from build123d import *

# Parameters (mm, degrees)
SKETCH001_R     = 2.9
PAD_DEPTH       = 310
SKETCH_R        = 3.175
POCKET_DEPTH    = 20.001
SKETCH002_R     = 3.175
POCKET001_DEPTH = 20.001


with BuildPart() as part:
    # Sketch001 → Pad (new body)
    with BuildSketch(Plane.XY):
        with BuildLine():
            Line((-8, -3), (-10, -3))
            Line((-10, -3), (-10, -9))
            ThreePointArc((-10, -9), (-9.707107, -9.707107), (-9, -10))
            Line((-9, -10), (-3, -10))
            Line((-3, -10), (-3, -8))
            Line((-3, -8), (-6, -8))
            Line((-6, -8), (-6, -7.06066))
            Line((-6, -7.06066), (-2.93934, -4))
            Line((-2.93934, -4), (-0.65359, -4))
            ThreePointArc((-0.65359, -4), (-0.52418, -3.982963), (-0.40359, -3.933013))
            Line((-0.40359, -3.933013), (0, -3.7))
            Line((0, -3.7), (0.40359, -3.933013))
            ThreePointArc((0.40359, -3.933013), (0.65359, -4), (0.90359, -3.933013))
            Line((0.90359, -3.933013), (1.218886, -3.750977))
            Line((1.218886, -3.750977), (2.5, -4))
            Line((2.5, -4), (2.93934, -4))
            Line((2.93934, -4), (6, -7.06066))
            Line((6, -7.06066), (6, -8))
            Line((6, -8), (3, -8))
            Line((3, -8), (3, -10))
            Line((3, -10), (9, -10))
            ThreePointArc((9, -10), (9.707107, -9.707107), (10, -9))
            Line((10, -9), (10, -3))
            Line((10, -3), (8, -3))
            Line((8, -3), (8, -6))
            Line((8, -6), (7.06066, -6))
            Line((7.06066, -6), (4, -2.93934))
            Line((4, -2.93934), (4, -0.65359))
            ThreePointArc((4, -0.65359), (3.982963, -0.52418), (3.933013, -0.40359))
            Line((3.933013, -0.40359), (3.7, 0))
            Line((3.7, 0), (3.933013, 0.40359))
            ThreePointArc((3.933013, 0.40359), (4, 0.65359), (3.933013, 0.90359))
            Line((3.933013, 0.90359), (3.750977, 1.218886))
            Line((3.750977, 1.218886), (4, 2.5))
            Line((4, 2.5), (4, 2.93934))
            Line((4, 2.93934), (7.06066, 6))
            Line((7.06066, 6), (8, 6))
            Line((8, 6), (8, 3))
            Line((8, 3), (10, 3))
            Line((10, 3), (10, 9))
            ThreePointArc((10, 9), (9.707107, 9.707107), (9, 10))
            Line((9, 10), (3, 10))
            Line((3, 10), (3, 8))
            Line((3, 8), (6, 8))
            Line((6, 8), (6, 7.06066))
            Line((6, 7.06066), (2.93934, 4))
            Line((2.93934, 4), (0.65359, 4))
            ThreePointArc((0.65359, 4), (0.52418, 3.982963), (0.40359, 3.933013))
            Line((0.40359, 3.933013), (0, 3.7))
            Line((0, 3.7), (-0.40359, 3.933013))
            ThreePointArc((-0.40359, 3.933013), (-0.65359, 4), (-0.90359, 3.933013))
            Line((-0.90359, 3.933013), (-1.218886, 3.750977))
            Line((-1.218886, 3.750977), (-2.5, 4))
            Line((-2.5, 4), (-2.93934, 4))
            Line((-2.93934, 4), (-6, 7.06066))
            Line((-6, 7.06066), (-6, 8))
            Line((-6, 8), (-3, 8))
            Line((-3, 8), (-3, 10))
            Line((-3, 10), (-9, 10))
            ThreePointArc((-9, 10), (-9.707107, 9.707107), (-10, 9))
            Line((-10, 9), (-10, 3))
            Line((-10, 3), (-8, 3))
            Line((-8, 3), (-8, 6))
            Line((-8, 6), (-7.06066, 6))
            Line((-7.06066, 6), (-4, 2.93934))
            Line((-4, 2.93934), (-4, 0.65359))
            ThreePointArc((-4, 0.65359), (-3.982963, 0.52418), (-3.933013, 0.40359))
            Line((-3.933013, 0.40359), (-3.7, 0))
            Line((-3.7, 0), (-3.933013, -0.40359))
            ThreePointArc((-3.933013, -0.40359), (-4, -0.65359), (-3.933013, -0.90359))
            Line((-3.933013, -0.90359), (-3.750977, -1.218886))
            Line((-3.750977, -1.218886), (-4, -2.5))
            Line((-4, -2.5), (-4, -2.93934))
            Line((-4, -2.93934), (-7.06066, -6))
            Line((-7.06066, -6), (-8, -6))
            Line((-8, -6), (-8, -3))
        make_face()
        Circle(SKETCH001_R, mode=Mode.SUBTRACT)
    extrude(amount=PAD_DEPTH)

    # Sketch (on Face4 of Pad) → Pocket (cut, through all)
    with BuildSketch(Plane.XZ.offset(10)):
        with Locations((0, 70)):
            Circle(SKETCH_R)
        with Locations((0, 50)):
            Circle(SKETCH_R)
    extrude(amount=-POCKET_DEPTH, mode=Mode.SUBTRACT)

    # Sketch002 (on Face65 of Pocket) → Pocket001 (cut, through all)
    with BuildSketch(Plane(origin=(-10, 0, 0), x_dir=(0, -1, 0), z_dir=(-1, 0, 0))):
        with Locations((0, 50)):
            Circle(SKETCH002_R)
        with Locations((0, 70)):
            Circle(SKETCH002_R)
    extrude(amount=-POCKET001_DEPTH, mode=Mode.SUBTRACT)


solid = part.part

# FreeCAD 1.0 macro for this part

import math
import FreeCAD as App
import Part
import Sketcher

V = App.Vector
Q = App.Units.Quantity

doc = App.newDocument("Part")
params = doc.addObject("Spreadsheet::Sheet", "Params")
for row, (alias, value) in enumerate([
    ("sketch1_radius", "0.999999 mm"),
    ("sketch1_diameter", "5.8 mm"),
    ("sketch1_radius2", "0.500002 mm"),
    ("sketch1_width", "2 mm"),
    ("sketch1_width2", "6 mm"),
    ("pad1_length", "310 mm"),
    ("sketch2_diameter", "6.35 mm"),
    ("sketch3_diameter", "6.35 mm"),
], start=1):
    params.set(f"A{row}", alias)
    params.set(f"B{row}", "=" + value)
    params.setAlias(f"B{row}", alias)

body = doc.addObject("PartDesign::Body", "Body")

sketch1 = doc.addObject("Sketcher::SketchObject", "Sketch")
body.addObject(sketch1)
sketch1.AttachmentSupport = (doc.XY_Plane, [""])
sketch1.MapMode = "FlatFace"
sketch1.addGeometry(Part.LineSegment(V(-8, -3, 0), V(-10, -3, 0)), False)
sketch1.addGeometry(Part.LineSegment(V(-10, -3, 0), V(-10, -9, 0)), False)
sketch1.addGeometry(Part.ArcOfCircle(Part.Circle(V(-9.000001, -9.000001, 0), V(0, 0, 1), 0.999999), math.radians(179.999957), math.radians(270.000043)), False)
sketch1.addGeometry(Part.LineSegment(V(-9, -10, 0), V(-3, -10, 0)), False)
sketch1.addGeometry(Part.LineSegment(V(-3, -10, 0), V(-3, -8, 0)), False)
sketch1.addGeometry(Part.LineSegment(V(-3, -8, 0), V(-6, -8, 0)), False)
sketch1.addGeometry(Part.LineSegment(V(-6, -8, 0), V(-6, -7.06066, 0)), False)
sketch1.addGeometry(Part.LineSegment(V(-6, -7.06066, 0), V(-2.93934, -4, 0)), False)
sketch1.addGeometry(Part.LineSegment(V(-2.93934, -4, 0), V(-0.65359, -4, 0)), False)
sketch1.addGeometry(Part.ArcOfCircle(Part.Circle(V(-0.653589, -3.500002, 0), V(0, 0, 1), 0.499998), math.radians(-90.000123), math.radians(-60.000004)), False)
sketch1.addGeometry(Part.LineSegment(V(-0.40359, -3.933013, 0), V(0, -3.7, 0)), False)
sketch1.addGeometry(Part.LineSegment(V(0, -3.7, 0), V(0.40359, -3.933013, 0)), False)
sketch1.addGeometry(Part.ArcOfCircle(Part.Circle(V(0.65359, -3.499998, 0), V(0, 0, 1), 0.500002), math.radians(-119.999873), math.radians(-60.000127)), False)
sketch1.addGeometry(Part.LineSegment(V(0.90359, -3.933013, 0), V(1.218886, -3.750977, 0)), False)
sketch1.addGeometry(Part.LineSegment(V(1.218886, -3.750977, 0), V(2.5, -4, 0)), False)
sketch1.addGeometry(Part.LineSegment(V(2.5, -4, 0), V(2.93934, -4, 0)), False)
sketch1.addGeometry(Part.LineSegment(V(2.93934, -4, 0), V(6, -7.06066, 0)), False)
sketch1.addGeometry(Part.LineSegment(V(6, -7.06066, 0), V(6, -8, 0)), False)
sketch1.addGeometry(Part.LineSegment(V(6, -8, 0), V(3, -8, 0)), False)
sketch1.addGeometry(Part.LineSegment(V(3, -8, 0), V(3, -10, 0)), False)
sketch1.addGeometry(Part.LineSegment(V(3, -10, 0), V(9, -10, 0)), False)
sketch1.addGeometry(Part.ArcOfCircle(Part.Circle(V(9.000001, -9.000001, 0), V(0, 0, 1), 0.999999), math.radians(-90.000043), math.radians(0.000043)), False)
sketch1.addGeometry(Part.LineSegment(V(10, -9, 0), V(10, -3, 0)), False)
sketch1.addGeometry(Part.LineSegment(V(10, -3, 0), V(8, -3, 0)), False)
sketch1.addGeometry(Part.LineSegment(V(8, -3, 0), V(8, -6, 0)), False)
sketch1.addGeometry(Part.LineSegment(V(8, -6, 0), V(7.06066, -6, 0)), False)
sketch1.addGeometry(Part.LineSegment(V(7.06066, -6, 0), V(4, -2.93934, 0)), False)
sketch1.addGeometry(Part.LineSegment(V(4, -2.93934, 0), V(4, -0.65359, 0)), False)
sketch1.addGeometry(Part.ArcOfCircle(Part.Circle(V(3.500002, -0.653589, 0), V(0, 0, 1), 0.499998), math.radians(-0.000123), math.radians(29.999996)), False)
sketch1.addGeometry(Part.LineSegment(V(3.933013, -0.40359, 0), V(3.7, 0, 0)), False)
sketch1.addGeometry(Part.LineSegment(V(3.7, 0, 0), V(3.933013, 0.40359, 0)), False)
sketch1.addGeometry(Part.ArcOfCircle(Part.Circle(V(3.499998, 0.65359, 0), V(0, 0, 1), 0.500002), math.radians(-29.999873), math.radians(29.999873)), False)
sketch1.addGeometry(Part.LineSegment(V(3.933013, 0.90359, 0), V(3.750977, 1.218886, 0)), False)
sketch1.addGeometry(Part.LineSegment(V(3.750977, 1.218886, 0), V(4, 2.5, 0)), False)
sketch1.addGeometry(Part.LineSegment(V(4, 2.5, 0), V(4, 2.93934, 0)), False)
sketch1.addGeometry(Part.LineSegment(V(4, 2.93934, 0), V(7.06066, 6, 0)), False)
sketch1.addGeometry(Part.LineSegment(V(7.06066, 6, 0), V(8, 6, 0)), False)
sketch1.addGeometry(Part.LineSegment(V(8, 6, 0), V(8, 3, 0)), False)
sketch1.addGeometry(Part.LineSegment(V(8, 3, 0), V(10, 3, 0)), False)
sketch1.addGeometry(Part.LineSegment(V(10, 3, 0), V(10, 9, 0)), False)
sketch1.addGeometry(Part.ArcOfCircle(Part.Circle(V(9.000001, 9.000001, 0), V(0, 0, 1), 0.999999), math.radians(-0.000043), math.radians(90.000043)), False)
sketch1.addGeometry(Part.LineSegment(V(9, 10, 0), V(3, 10, 0)), False)
sketch1.addGeometry(Part.LineSegment(V(3, 10, 0), V(3, 8, 0)), False)
sketch1.addGeometry(Part.LineSegment(V(3, 8, 0), V(6, 8, 0)), False)
sketch1.addGeometry(Part.LineSegment(V(6, 8, 0), V(6, 7.06066, 0)), False)
sketch1.addGeometry(Part.LineSegment(V(6, 7.06066, 0), V(2.93934, 4, 0)), False)
sketch1.addGeometry(Part.LineSegment(V(2.93934, 4, 0), V(0.65359, 4, 0)), False)
sketch1.addGeometry(Part.ArcOfCircle(Part.Circle(V(0.653589, 3.500002, 0), V(0, 0, 1), 0.499998), math.radians(89.999877), math.radians(119.999996)), False)
sketch1.addGeometry(Part.LineSegment(V(0.40359, 3.933013, 0), V(0, 3.7, 0)), False)
sketch1.addGeometry(Part.LineSegment(V(0, 3.7, 0), V(-0.40359, 3.933013, 0)), False)
sketch1.addGeometry(Part.ArcOfCircle(Part.Circle(V(-0.65359, 3.499998, 0), V(0, 0, 1), 0.500002), math.radians(60.000127), math.radians(119.999873)), False)
sketch1.addGeometry(Part.LineSegment(V(-0.90359, 3.933013, 0), V(-1.218886, 3.750977, 0)), False)
sketch1.addGeometry(Part.LineSegment(V(-1.218886, 3.750977, 0), V(-2.5, 4, 0)), False)
sketch1.addGeometry(Part.LineSegment(V(-2.5, 4, 0), V(-2.93934, 4, 0)), False)
sketch1.addGeometry(Part.LineSegment(V(-2.93934, 4, 0), V(-6, 7.06066, 0)), False)
sketch1.addGeometry(Part.LineSegment(V(-6, 7.06066, 0), V(-6, 8, 0)), False)
sketch1.addGeometry(Part.LineSegment(V(-6, 8, 0), V(-3, 8, 0)), False)
sketch1.addGeometry(Part.LineSegment(V(-3, 8, 0), V(-3, 10, 0)), False)
sketch1.addGeometry(Part.LineSegment(V(-3, 10, 0), V(-9, 10, 0)), False)
sketch1.addGeometry(Part.ArcOfCircle(Part.Circle(V(-9.000001, 9.000001, 0), V(0, 0, 1), 0.999999), math.radians(89.999957), math.radians(180.000043)), False)
sketch1.addGeometry(Part.LineSegment(V(-10, 9, 0), V(-10, 3, 0)), False)
sketch1.addGeometry(Part.LineSegment(V(-10, 3, 0), V(-8, 3, 0)), False)
sketch1.addGeometry(Part.LineSegment(V(-8, 3, 0), V(-8, 6, 0)), False)
sketch1.addGeometry(Part.LineSegment(V(-8, 6, 0), V(-7.06066, 6, 0)), False)
sketch1.addGeometry(Part.LineSegment(V(-7.06066, 6, 0), V(-4, 2.93934, 0)), False)
sketch1.addGeometry(Part.LineSegment(V(-4, 2.93934, 0), V(-4, 0.65359, 0)), False)
sketch1.addGeometry(Part.ArcOfCircle(Part.Circle(V(-3.500002, 0.653589, 0), V(0, 0, 1), 0.499998), math.radians(179.999877), math.radians(209.999996)), False)
sketch1.addGeometry(Part.LineSegment(V(-3.933013, 0.40359, 0), V(-3.7, 0, 0)), False)
sketch1.addGeometry(Part.LineSegment(V(-3.7, 0, 0), V(-3.933013, -0.40359, 0)), False)
sketch1.addGeometry(Part.ArcOfCircle(Part.Circle(V(-3.499998, -0.65359, 0), V(0, 0, 1), 0.500002), math.radians(150.000127), math.radians(209.999873)), False)
sketch1.addGeometry(Part.LineSegment(V(-3.933013, -0.90359, 0), V(-3.750977, -1.218886, 0)), False)
sketch1.addGeometry(Part.LineSegment(V(-3.750977, -1.218886, 0), V(-4, -2.5, 0)), False)
sketch1.addGeometry(Part.LineSegment(V(-4, -2.5, 0), V(-4, -2.93934, 0)), False)
sketch1.addGeometry(Part.LineSegment(V(-4, -2.93934, 0), V(-7.06066, -6, 0)), False)
sketch1.addGeometry(Part.LineSegment(V(-7.06066, -6, 0), V(-8, -6, 0)), False)
sketch1.addGeometry(Part.LineSegment(V(-8, -6, 0), V(-8, -3, 0)), False)
sketch1.addGeometry(Part.Circle(V(0, 0, 0), V(0, 0, 1), 2.9), False)
sketch1.addConstraint(Sketcher.Constraint("Coincident", 0, 2, 1, 1))
sketch1.addConstraint(Sketcher.Constraint("Tangent", 1, 2, 2, 1))
sketch1.addConstraint(Sketcher.Constraint("Tangent", 2, 2, 3, 1))
sketch1.addConstraint(Sketcher.Constraint("Coincident", 3, 2, 4, 1))
sketch1.addConstraint(Sketcher.Constraint("Coincident", 4, 2, 5, 1))
sketch1.addConstraint(Sketcher.Constraint("Coincident", 5, 2, 6, 1))
sketch1.addConstraint(Sketcher.Constraint("Coincident", 6, 2, 7, 1))
sketch1.addConstraint(Sketcher.Constraint("Coincident", 7, 2, 8, 1))
sketch1.addConstraint(Sketcher.Constraint("Coincident", 8, 2, 9, 1))
sketch1.addConstraint(Sketcher.Constraint("Tangent", 9, 2, 10, 1))
sketch1.addConstraint(Sketcher.Constraint("Coincident", 10, 2, 11, 1))
sketch1.addConstraint(Sketcher.Constraint("Coincident", 11, 2, 12, 1))
sketch1.addConstraint(Sketcher.Constraint("Tangent", 12, 2, 13, 1))
sketch1.addConstraint(Sketcher.Constraint("Coincident", 13, 2, 14, 1))
sketch1.addConstraint(Sketcher.Constraint("Coincident", 14, 2, 15, 1))
sketch1.addConstraint(Sketcher.Constraint("Coincident", 15, 2, 16, 1))
sketch1.addConstraint(Sketcher.Constraint("Coincident", 16, 2, 17, 1))
sketch1.addConstraint(Sketcher.Constraint("Coincident", 17, 2, 18, 1))
sketch1.addConstraint(Sketcher.Constraint("Coincident", 18, 2, 19, 1))
sketch1.addConstraint(Sketcher.Constraint("Coincident", 19, 2, 20, 1))
sketch1.addConstraint(Sketcher.Constraint("Tangent", 20, 2, 21, 1))
sketch1.addConstraint(Sketcher.Constraint("Tangent", 21, 2, 22, 1))
sketch1.addConstraint(Sketcher.Constraint("Coincident", 22, 2, 23, 1))
sketch1.addConstraint(Sketcher.Constraint("Coincident", 23, 2, 24, 1))
sketch1.addConstraint(Sketcher.Constraint("Coincident", 24, 2, 25, 1))
sketch1.addConstraint(Sketcher.Constraint("Coincident", 25, 2, 26, 1))
sketch1.addConstraint(Sketcher.Constraint("Coincident", 26, 2, 27, 1))
sketch1.addConstraint(Sketcher.Constraint("Coincident", 27, 2, 28, 1))
sketch1.addConstraint(Sketcher.Constraint("Tangent", 28, 2, 29, 1))
sketch1.addConstraint(Sketcher.Constraint("Coincident", 29, 2, 30, 1))
sketch1.addConstraint(Sketcher.Constraint("Coincident", 30, 2, 31, 1))
sketch1.addConstraint(Sketcher.Constraint("Tangent", 31, 2, 32, 1))
sketch1.addConstraint(Sketcher.Constraint("Coincident", 32, 2, 33, 1))
sketch1.addConstraint(Sketcher.Constraint("Coincident", 33, 2, 34, 1))
sketch1.addConstraint(Sketcher.Constraint("Coincident", 34, 2, 35, 1))
sketch1.addConstraint(Sketcher.Constraint("Coincident", 35, 2, 36, 1))
sketch1.addConstraint(Sketcher.Constraint("Coincident", 36, 2, 37, 1))
sketch1.addConstraint(Sketcher.Constraint("Coincident", 37, 2, 38, 1))
sketch1.addConstraint(Sketcher.Constraint("Coincident", 38, 2, 39, 1))
sketch1.addConstraint(Sketcher.Constraint("Tangent", 39, 2, 40, 1))
sketch1.addConstraint(Sketcher.Constraint("Tangent", 40, 2, 41, 1))
sketch1.addConstraint(Sketcher.Constraint("Coincident", 41, 2, 42, 1))
sketch1.addConstraint(Sketcher.Constraint("Coincident", 42, 2, 43, 1))
sketch1.addConstraint(Sketcher.Constraint("Coincident", 43, 2, 44, 1))
sketch1.addConstraint(Sketcher.Constraint("Coincident", 44, 2, 45, 1))
sketch1.addConstraint(Sketcher.Constraint("Coincident", 45, 2, 46, 1))
sketch1.addConstraint(Sketcher.Constraint("Coincident", 46, 2, 47, 1))
sketch1.addConstraint(Sketcher.Constraint("Tangent", 47, 2, 48, 1))
sketch1.addConstraint(Sketcher.Constraint("Coincident", 48, 2, 49, 1))
sketch1.addConstraint(Sketcher.Constraint("Coincident", 49, 2, 50, 1))
sketch1.addConstraint(Sketcher.Constraint("Tangent", 50, 2, 51, 1))
sketch1.addConstraint(Sketcher.Constraint("Coincident", 51, 2, 52, 1))
sketch1.addConstraint(Sketcher.Constraint("Coincident", 52, 2, 53, 1))
sketch1.addConstraint(Sketcher.Constraint("Coincident", 53, 2, 54, 1))
sketch1.addConstraint(Sketcher.Constraint("Coincident", 54, 2, 55, 1))
sketch1.addConstraint(Sketcher.Constraint("Coincident", 55, 2, 56, 1))
sketch1.addConstraint(Sketcher.Constraint("Coincident", 56, 2, 57, 1))
sketch1.addConstraint(Sketcher.Constraint("Coincident", 57, 2, 58, 1))
sketch1.addConstraint(Sketcher.Constraint("Tangent", 58, 2, 59, 1))
sketch1.addConstraint(Sketcher.Constraint("Tangent", 59, 2, 60, 1))
sketch1.addConstraint(Sketcher.Constraint("Coincident", 60, 2, 61, 1))
sketch1.addConstraint(Sketcher.Constraint("Coincident", 61, 2, 62, 1))
sketch1.addConstraint(Sketcher.Constraint("Coincident", 62, 2, 63, 1))
sketch1.addConstraint(Sketcher.Constraint("Coincident", 63, 2, 64, 1))
sketch1.addConstraint(Sketcher.Constraint("Coincident", 64, 2, 65, 1))
sketch1.addConstraint(Sketcher.Constraint("Coincident", 65, 2, 66, 1))
sketch1.addConstraint(Sketcher.Constraint("Tangent", 66, 2, 67, 1))
sketch1.addConstraint(Sketcher.Constraint("Coincident", 67, 2, 68, 1))
sketch1.addConstraint(Sketcher.Constraint("Coincident", 68, 2, 69, 1))
sketch1.addConstraint(Sketcher.Constraint("Tangent", 69, 2, 70, 1))
sketch1.addConstraint(Sketcher.Constraint("Coincident", 70, 2, 71, 1))
sketch1.addConstraint(Sketcher.Constraint("Coincident", 71, 2, 72, 1))
sketch1.addConstraint(Sketcher.Constraint("Coincident", 72, 2, 73, 1))
sketch1.addConstraint(Sketcher.Constraint("Coincident", 73, 2, 74, 1))
sketch1.addConstraint(Sketcher.Constraint("Coincident", 74, 2, 75, 1))
sketch1.addConstraint(Sketcher.Constraint("Coincident", 75, 2, 0, 1))
sketch1.addConstraint(Sketcher.Constraint("Horizontal", 0))
sketch1.addConstraint(Sketcher.Constraint("Vertical", 1))
sketch1.addConstraint(Sketcher.Constraint("Horizontal", 3))
sketch1.addConstraint(Sketcher.Constraint("Vertical", 4))
sketch1.addConstraint(Sketcher.Constraint("Horizontal", 5))
sketch1.addConstraint(Sketcher.Constraint("Vertical", 6))
sketch1.addConstraint(Sketcher.Constraint("Horizontal", 8))
sketch1.addConstraint(Sketcher.Constraint("Horizontal", 15))
sketch1.addConstraint(Sketcher.Constraint("Vertical", 17))
sketch1.addConstraint(Sketcher.Constraint("Horizontal", 18))
sketch1.addConstraint(Sketcher.Constraint("Vertical", 19))
sketch1.addConstraint(Sketcher.Constraint("Horizontal", 20))
sketch1.addConstraint(Sketcher.Constraint("Vertical", 22))
sketch1.addConstraint(Sketcher.Constraint("Horizontal", 23))
sketch1.addConstraint(Sketcher.Constraint("Vertical", 24))
sketch1.addConstraint(Sketcher.Constraint("Horizontal", 25))
sketch1.addConstraint(Sketcher.Constraint("Vertical", 27))
sketch1.addConstraint(Sketcher.Constraint("Vertical", 34))
sketch1.addConstraint(Sketcher.Constraint("Horizontal", 36))
sketch1.addConstraint(Sketcher.Constraint("Vertical", 37))
sketch1.addConstraint(Sketcher.Constraint("Horizontal", 38))
sketch1.addConstraint(Sketcher.Constraint("Vertical", 39))
sketch1.addConstraint(Sketcher.Constraint("Horizontal", 41))
sketch1.addConstraint(Sketcher.Constraint("Vertical", 42))
sketch1.addConstraint(Sketcher.Constraint("Horizontal", 43))
sketch1.addConstraint(Sketcher.Constraint("Vertical", 44))
sketch1.addConstraint(Sketcher.Constraint("Horizontal", 46))
sketch1.addConstraint(Sketcher.Constraint("Horizontal", 53))
sketch1.addConstraint(Sketcher.Constraint("Vertical", 55))
sketch1.addConstraint(Sketcher.Constraint("Horizontal", 56))
sketch1.addConstraint(Sketcher.Constraint("Vertical", 57))
sketch1.addConstraint(Sketcher.Constraint("Horizontal", 58))
sketch1.addConstraint(Sketcher.Constraint("Vertical", 60))
sketch1.addConstraint(Sketcher.Constraint("Horizontal", 61))
sketch1.addConstraint(Sketcher.Constraint("Vertical", 62))
sketch1.addConstraint(Sketcher.Constraint("Horizontal", 63))
sketch1.addConstraint(Sketcher.Constraint("Vertical", 65))
sketch1.addConstraint(Sketcher.Constraint("Vertical", 72))
sketch1.addConstraint(Sketcher.Constraint("Horizontal", 74))
sketch1.addConstraint(Sketcher.Constraint("Vertical", 75))
sketch1.addConstraint(Sketcher.Constraint("Coincident", 76, 3, -1, 1))
sketch1.addConstraint(Sketcher.Constraint("Equal", 2, 21))
sketch1.addConstraint(Sketcher.Constraint("Equal", 9, 28))
sketch1.addConstraint(Sketcher.Constraint("Equal", 12, 31))
sketch1.addConstraint(Sketcher.Constraint("Equal", 21, 40))
sketch1.addConstraint(Sketcher.Constraint("Equal", 28, 47))
sketch1.addConstraint(Sketcher.Constraint("Equal", 31, 50))
sketch1.addConstraint(Sketcher.Constraint("Equal", 40, 59))
sketch1.addConstraint(Sketcher.Constraint("Equal", 47, 66))
sketch1.addConstraint(Sketcher.Constraint("Equal", 50, 69))
sketch1.addConstraint(Sketcher.Constraint("Symmetric", 2, 3, 40, 3, -1, 1))
sketch1.addConstraint(Sketcher.Constraint("Symmetric", 9, 3, 47, 3, -1, 1))
sketch1.addConstraint(Sketcher.Constraint("Symmetric", 12, 3, 50, 3, -1, 1))
sketch1.addConstraint(Sketcher.Constraint("Symmetric", 21, 3, 59, 3, -1, 1))
sketch1.addConstraint(Sketcher.Constraint("Symmetric", 28, 3, 66, 3, -1, 1))
sketch1.addConstraint(Sketcher.Constraint("Symmetric", 31, 3, 69, 3, -1, 1))
sketch1.addConstraint(Sketcher.Constraint("Symmetric", 4, 2, 42, 2, -1, 1))
sketch1.addConstraint(Sketcher.Constraint("Symmetric", 6, 2, 44, 2, -1, 1))
sketch1.addConstraint(Sketcher.Constraint("Symmetric", 10, 2, 48, 2, -1, 1))
sketch1.addConstraint(Sketcher.Constraint("Symmetric", 13, 2, 51, 2, -1, 1))
sketch1.addConstraint(Sketcher.Constraint("Symmetric", 14, 2, 52, 2, -1, 1))
sketch1.addConstraint(Sketcher.Constraint("Symmetric", 16, 2, 54, 2, -1, 1))
sketch1.addConstraint(Sketcher.Constraint("Symmetric", 18, 2, 56, 2, -1, 1))
sketch1.addConstraint(Sketcher.Constraint("Symmetric", 23, 2, 61, 2, -1, 1))
sketch1.addConstraint(Sketcher.Constraint("Symmetric", 25, 2, 63, 2, -1, 1))
sketch1.addConstraint(Sketcher.Constraint("Symmetric", 29, 2, 67, 2, -1, 1))
sketch1.addConstraint(Sketcher.Constraint("Symmetric", 32, 2, 70, 2, -1, 1))
sketch1.addConstraint(Sketcher.Constraint("Symmetric", 33, 2, 71, 2, -1, 1))
sketch1.addConstraint(Sketcher.Constraint("Symmetric", 35, 2, 73, 2, -1, 1))
sketch1.addConstraint(Sketcher.Constraint("Symmetric", 37, 2, 75, 2, -1, 1))
sketch1.addConstraint(Sketcher.Constraint("Symmetric", 9, 3, 12, 3, -2))
sketch1.addConstraint(Sketcher.Constraint("Symmetric", 2, 3, 21, 3, -2))
sketch1.addConstraint(Sketcher.Constraint("Symmetric", 31, 3, 66, 3, -2))
sketch1.addConstraint(Sketcher.Constraint("Symmetric", 9, 2, 11, 2, -2))
sketch1.addConstraint(Sketcher.Constraint("Symmetric", 7, 2, 15, 2, -2))
sketch1.addConstraint(Sketcher.Constraint("Symmetric", 6, 2, 16, 2, -2))
sketch1.addConstraint(Sketcher.Constraint("Symmetric", 4, 2, 18, 2, -2))
sketch1.addConstraint(Sketcher.Constraint("Symmetric", 37, 2, 61, 2, -2))
sketch1.addConstraint(Sketcher.Constraint("Symmetric", 35, 2, 63, 2, -2))
sketch1.addConstraint(Sketcher.Constraint("Symmetric", 34, 2, 64, 2, -2))
sketch1.addConstraint(Sketcher.Constraint("PointOnObject", 10, 2, -2))
sketch1.addConstraint(Sketcher.Constraint("PointOnObject", 29, 2, -1))
sketch1.addConstraint(Sketcher.Constraint("Parallel", 10, 13))
sketch1.addConstraint(Sketcher.Constraint("Perpendicular", 7, 16))
sketch1.addConstraint(Sketcher.Constraint("Parallel", 16, 26))
sketch1.addConstraint(Sketcher.Constraint("Perpendicular", 13, 29))
sketch1.addConstraint(Sketcher.Constraint("Parallel", 29, 32))
sketch1.addConstraint(Sketcher.Constraint("Perpendicular", 14, 33))
sketch1.addConstraint(Sketcher.Constraint("Perpendicular", 26, 35))
sketch1.addConstraint(Sketcher.Constraint("Parallel", 35, 45))
sketch1.addConstraint(Sketcher.Constraint("Perpendicular", 45, 54))
sketch1.addConstraint(Sketcher.Constraint("Perpendicular", 64, 73))
sketch1.addConstraint(Sketcher.Constraint("Horizontal", 69, 3, 27, 2))
sketch1.addConstraint(Sketcher.Constraint("Horizontal", 47, 2, 49, 2))
sketch1.addConstraint(Sketcher.Constraint("Horizontal", 66, 3, 65, 2))
sketch1.addConstraint(Sketcher.Constraint("Horizontal", 30, 2, 66, 2))
sketch1.addConstraint(Sketcher.Constraint("Horizontal", 28, 2, 68, 2))
sketch1.addConstraint(Sketcher.Constraint("Vertical", 50, 3, 8, 2))
sketch1.addConstraint(Sketcher.Constraint("Vertical", 47, 3, 46, 2))
sketch1.addConstraint(Sketcher.Constraint("Equal", 58, 1))
sketch1.addConstraint(Sketcher.Constraint("Equal", 61, 4))
sketch1.addConstraint(Sketcher.Constraint("Equal", 74, 6))
sketch1.addConstraint(Sketcher.Constraint("Equal", 56, 24))
sketch1.addConstraint(Sketcher.Constraint("Equal", 46, 27))
sketch1.addConstraint(Sketcher.Constraint("Equal", 53, 34))
sketch1.addConstraint(Sketcher.Constraint("Equal", 16, 26))
sketch1.addConstraint(Sketcher.Constraint("Equal", 11, 29))
sketch1.addConstraint(Sketcher.Constraint("Radius", 2, Q("0.999999 mm")))
sketch1.addConstraint(Sketcher.Constraint("Diameter", 76, Q("5.8 mm")))
sketch1.addConstraint(Sketcher.Constraint("Radius", 12, Q("0.500002 mm")))
sketch1.addConstraint(Sketcher.Constraint("DistanceX", 0, 2, 0, 1, Q("2 mm")))
sketch1.addConstraint(Sketcher.Constraint("DistanceX", 3, 1, 3, 2, Q("6 mm")))
sketch1.addConstraint(Sketcher.Constraint("DistanceX", 5, 2, 5, 1, Q("3 mm")))
sketch1.addConstraint(Sketcher.Constraint("Angle", 14, Q("-10.999986 deg")))
sketch1.addConstraint(Sketcher.Constraint("DistanceX", 2, 3, -1, 1, Q("9.000001 mm")))
sketch1.addConstraint(Sketcher.Constraint("DistanceY", 7, 2, -1, 1, Q("4 mm")))
sketch1.addConstraint(Sketcher.Constraint("DistanceY", 10, 2, -1, 1, Q("3.7 mm")))
sketch1.addConstraint(Sketcher.Constraint("DistanceX", -1, 1, 14, 2, Q("2.5 mm")))
sketch1.addConstraint(Sketcher.Constraint("DistanceX", 8, 1, 8, 2, Q("2.28575 mm")))
sketch1.addConstraint(Sketcher.Constraint("DistanceX", 15, 1, 15, 2, Q("0.43934 mm")))
sketch1.setExpression("Constraints[183]", "Params.sketch1_radius")
sketch1.setExpression("Constraints[184]", "Params.sketch1_diameter")
sketch1.setExpression("Constraints[185]", "Params.sketch1_radius2")
sketch1.setExpression("Constraints[186]", "Params.sketch1_width")
sketch1.setExpression("Constraints[187]", "Params.sketch1_width2")
pad1 = doc.addObject("PartDesign::Pad", "Pad")
body.addObject(pad1)
pad1.Profile = sketch1
pad1.setExpression("Length", "Params.pad1_length")

sketch2 = doc.addObject("Sketcher::SketchObject", "Sketch001")
body.addObject(sketch2)
sketch2.AttachmentSupport = (doc.XZ_Plane, [""])
sketch2.MapMode = "FlatFace"
sketch2.AttachmentOffset = App.Placement(V(0, 0, 10), App.Rotation())
sketch2.addGeometry(Part.Circle(V(0, 70, 0), V(0, 0, 1), 3.175), False)
sketch2.addGeometry(Part.Circle(V(0, 50, 0), V(0, 0, 1), 3.175), False)
sketch2.addConstraint(Sketcher.Constraint("Equal", 0, 1))
sketch2.addConstraint(Sketcher.Constraint("PointOnObject", 0, 3, -2))
sketch2.addConstraint(Sketcher.Constraint("PointOnObject", 1, 3, -2))
sketch2.addConstraint(Sketcher.Constraint("Diameter", 0, Q("6.35 mm")))
sketch2.addConstraint(Sketcher.Constraint("DistanceY", -1, 1, 0, 3, Q("70 mm")))
sketch2.addConstraint(Sketcher.Constraint("DistanceY", -1, 1, 1, 3, Q("50 mm")))
sketch2.setExpression("Constraints[3]", "Params.sketch2_diameter")
pocket1 = doc.addObject("PartDesign::Pocket", "Pocket")
body.addObject(pocket1)
pocket1.Profile = sketch2
pocket1.Type = "ThroughAll"

sketch3 = doc.addObject("Sketcher::SketchObject", "Sketch002")
body.addObject(sketch3)
sketch3.AttachmentSupport = (doc.YZ_Plane, [""])
sketch3.MapMode = "FlatFace"
sketch3.AttachmentOffset = App.Placement(V(0, 0, -10), App.Rotation())
sketch3.addGeometry(Part.Circle(V(0, 50, 0), V(0, 0, 1), 3.175), False)
sketch3.addGeometry(Part.Circle(V(0, 70, 0), V(0, 0, 1), 3.175), False)
sketch3.addConstraint(Sketcher.Constraint("Equal", 0, 1))
sketch3.addConstraint(Sketcher.Constraint("PointOnObject", 0, 3, -2))
sketch3.addConstraint(Sketcher.Constraint("PointOnObject", 1, 3, -2))
sketch3.addConstraint(Sketcher.Constraint("Diameter", 0, Q("6.35 mm")))
sketch3.addConstraint(Sketcher.Constraint("DistanceY", -1, 1, 0, 3, Q("50 mm")))
sketch3.addConstraint(Sketcher.Constraint("DistanceY", -1, 1, 1, 3, Q("70 mm")))
sketch3.setExpression("Constraints[3]", "Params.sketch3_diameter")
pocket2 = doc.addObject("PartDesign::Pocket", "Pocket001")
body.addObject(pocket2)
pocket2.Profile = sketch3
pocket2.Type = "ThroughAll"
pocket2.Reversed = True

doc.recompute()
